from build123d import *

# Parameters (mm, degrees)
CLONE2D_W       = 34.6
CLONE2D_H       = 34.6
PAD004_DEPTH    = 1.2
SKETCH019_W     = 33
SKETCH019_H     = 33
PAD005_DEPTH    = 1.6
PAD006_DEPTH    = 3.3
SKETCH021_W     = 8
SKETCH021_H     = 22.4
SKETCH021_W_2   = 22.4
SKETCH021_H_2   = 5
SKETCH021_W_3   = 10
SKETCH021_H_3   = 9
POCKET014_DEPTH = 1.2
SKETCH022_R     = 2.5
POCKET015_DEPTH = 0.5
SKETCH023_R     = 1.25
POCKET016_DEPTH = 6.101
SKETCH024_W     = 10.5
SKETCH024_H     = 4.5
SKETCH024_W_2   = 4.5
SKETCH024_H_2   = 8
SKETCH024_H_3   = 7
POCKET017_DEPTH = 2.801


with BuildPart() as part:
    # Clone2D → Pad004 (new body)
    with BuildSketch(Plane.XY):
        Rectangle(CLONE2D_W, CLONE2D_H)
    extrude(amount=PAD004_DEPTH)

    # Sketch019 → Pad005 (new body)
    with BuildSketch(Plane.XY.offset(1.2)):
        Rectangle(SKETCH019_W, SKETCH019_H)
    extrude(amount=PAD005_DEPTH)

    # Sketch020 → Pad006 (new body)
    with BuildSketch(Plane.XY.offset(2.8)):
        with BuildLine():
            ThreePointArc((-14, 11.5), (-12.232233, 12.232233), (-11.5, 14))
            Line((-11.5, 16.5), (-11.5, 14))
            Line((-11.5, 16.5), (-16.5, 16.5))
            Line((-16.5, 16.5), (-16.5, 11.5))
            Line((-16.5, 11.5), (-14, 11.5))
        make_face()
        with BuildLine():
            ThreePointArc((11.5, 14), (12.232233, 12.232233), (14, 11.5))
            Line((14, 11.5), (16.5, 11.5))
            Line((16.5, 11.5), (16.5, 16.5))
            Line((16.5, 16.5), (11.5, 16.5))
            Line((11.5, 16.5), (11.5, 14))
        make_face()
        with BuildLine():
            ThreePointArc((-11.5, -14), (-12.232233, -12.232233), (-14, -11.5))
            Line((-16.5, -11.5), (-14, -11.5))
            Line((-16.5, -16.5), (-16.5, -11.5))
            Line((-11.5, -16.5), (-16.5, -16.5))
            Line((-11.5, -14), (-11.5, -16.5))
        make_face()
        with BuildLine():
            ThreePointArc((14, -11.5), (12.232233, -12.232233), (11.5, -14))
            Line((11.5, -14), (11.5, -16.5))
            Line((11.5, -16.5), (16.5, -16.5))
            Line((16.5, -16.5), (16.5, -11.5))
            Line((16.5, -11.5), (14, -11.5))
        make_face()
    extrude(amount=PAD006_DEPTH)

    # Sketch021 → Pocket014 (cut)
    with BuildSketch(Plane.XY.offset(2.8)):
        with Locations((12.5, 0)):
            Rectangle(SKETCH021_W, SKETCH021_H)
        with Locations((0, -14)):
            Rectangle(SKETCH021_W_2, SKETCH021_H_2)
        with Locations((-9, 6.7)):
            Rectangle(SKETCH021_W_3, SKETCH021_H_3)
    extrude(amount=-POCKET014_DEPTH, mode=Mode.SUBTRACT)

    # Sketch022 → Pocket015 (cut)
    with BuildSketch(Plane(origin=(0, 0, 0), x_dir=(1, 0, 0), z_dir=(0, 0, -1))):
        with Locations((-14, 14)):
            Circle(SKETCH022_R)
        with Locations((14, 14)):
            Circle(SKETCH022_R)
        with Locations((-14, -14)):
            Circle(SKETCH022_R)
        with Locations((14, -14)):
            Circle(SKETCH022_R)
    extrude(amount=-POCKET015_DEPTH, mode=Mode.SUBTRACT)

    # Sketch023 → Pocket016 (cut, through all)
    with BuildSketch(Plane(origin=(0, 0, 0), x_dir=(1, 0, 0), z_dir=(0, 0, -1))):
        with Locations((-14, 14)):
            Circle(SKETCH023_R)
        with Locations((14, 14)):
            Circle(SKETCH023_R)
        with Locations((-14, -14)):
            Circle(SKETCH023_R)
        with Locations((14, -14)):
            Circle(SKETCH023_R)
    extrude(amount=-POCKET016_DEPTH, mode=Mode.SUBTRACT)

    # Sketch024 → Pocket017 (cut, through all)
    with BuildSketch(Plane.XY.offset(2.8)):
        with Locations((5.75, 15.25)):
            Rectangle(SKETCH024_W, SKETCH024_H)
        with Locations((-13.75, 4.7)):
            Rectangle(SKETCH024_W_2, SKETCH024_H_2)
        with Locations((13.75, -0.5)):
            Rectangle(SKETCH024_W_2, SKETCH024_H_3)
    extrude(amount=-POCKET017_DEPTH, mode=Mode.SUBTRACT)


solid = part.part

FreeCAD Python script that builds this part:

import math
import FreeCAD as App
import Part
import Sketcher

V = App.Vector
Q = App.Units.Quantity

doc = App.newDocument("Part")
params = doc.addObject("Spreadsheet::Sheet", "Params")
for row, (alias, value) in enumerate([
    ("sketch1_width", "34.6 mm"),
    ("pad1_length", "1.2 mm"),
    ("sketch2_width", "33 mm"),
    ("pad2_length", "1.6 mm"),
    ("sketch3_radius", "2.5 mm"),
    ("sketch3_width", "5 mm"),
    ("pad3_length", "3.3 mm"),
    ("sketch4_width", "8 mm"),
    ("sketch4_width2", "10 mm"),
    ("sketch4_height", "5 mm"),
    ("sketch4_height2", "9 mm"),
    ("sketch4_width3", "22.4 mm"),
    ("pocket1_length", "1.2 mm"),
    ("sketch5_diameter", "5 mm"),
    ("pocket2_length", "0.5 mm"),
    ("sketch6_diameter", "2.5 mm"),
    ("sketch7_height", "8 mm"),
    ("sketch7_height2", "7 mm"),
    ("sketch7_width", "10.5 mm"),
    ("sketch7_width2", "4.5 mm"),
], start=1):
    params.set(f"A{row}", alias)
    params.set(f"B{row}", "=" + value)
    params.setAlias(f"B{row}", alias)

body = doc.addObject("PartDesign::Body", "Body")

# Sketch on XY plane
sketch1 = body.newObject("Sketcher::SketchObject", "Sketch")
sketch1.AttachmentSupport = (doc.getObject("XY_Plane"), [""])
sketch1.MapMode = "FlatFace"
sketch1.addGeometry([
    Part.LineSegment(V(-17, 17, 0), V(-17, -17, 0)),
    Part.LineSegment(V(-17, -17, 0), V(17, -17, 0)),
    Part.LineSegment(V(17, -17, 0), V(17, 17, 0)),
    Part.LineSegment(V(17, 17, 0), V(-17, 17, 0)),
], False)
sketch1.addConstraint([
    Sketcher.Constraint("Coincident", 0, 2, 1, 1),
    Sketcher.Constraint("Coincident", 1, 2, 2, 1),
    Sketcher.Constraint("Coincident", 2, 2, 3, 1),
    Sketcher.Constraint("Coincident", 3, 2, 0, 1),
    Sketcher.Constraint("Vertical", 0),
    Sketcher.Constraint("Horizontal", 1),
    Sketcher.Constraint("Vertical", 2),
    Sketcher.Constraint("Horizontal", 3),
    Sketcher.Constraint("Symmetric", 0, 2, 2, 2, -1, 1),
    Sketcher.Constraint("Equal", 3, 0),
    Sketcher.Constraint("DistanceX", 1, 1, 1, 2, Q("34.6 mm")),
])
sketch1.setExpression("Constraints[10]", "Params.sketch1_width")
pad1 = body.newObject("PartDesign::Pad", "Pad")
pad1.Profile = sketch1
pad1.setExpression("Length", "Params.pad1_length")

# Sketch on XY plane
sketch2 = body.newObject("Sketcher::SketchObject", "Sketch001")
sketch2.AttachmentSupport = (doc.getObject("XY_Plane"), [""])
sketch2.MapMode = "FlatFace"
sketch2.AttachmentOffset = App.Placement(V(0, 0, 1.2), App.Rotation())
sketch2.addGeometry([
    Part.LineSegment(V(-16, 16, 0), V(-16, -16, 0)),
    Part.LineSegment(V(-16, -16, 0), V(16, -16, 0)),
    Part.LineSegment(V(16, -16, 0), V(16, 16, 0)),
    Part.LineSegment(V(16, 16, 0), V(-16, 16, 0)),
], False)
sketch2.addConstraint([
    Sketcher.Constraint("Coincident", 0, 2, 1, 1),
    Sketcher.Constraint("Coincident", 1, 2, 2, 1),
    Sketcher.Constraint("Coincident", 2, 2, 3, 1),
    Sketcher.Constraint("Coincident", 3, 2, 0, 1),
    Sketcher.Constraint("Vertical", 0),
    Sketcher.Constraint("Horizontal", 1),
    Sketcher.Constraint("Vertical", 2),
    Sketcher.Constraint("Horizontal", 3),
    Sketcher.Constraint("Symmetric", 0, 2, 2, 2, -1, 1),
    Sketcher.Constraint("Equal", 3, 0),
    Sketcher.Constraint("DistanceX", 1, 1, 1, 2, Q("33 mm")),
])
sketch2.setExpression("Constraints[10]", "Params.sketch2_width")
pad2 = body.newObject("PartDesign::Pad", "Pad001")
pad2.Profile = sketch2
pad2.setExpression("Length", "Params.pad2_length")

# Sketch on XY plane
sketch3 = body.newObject("Sketcher::SketchObject", "Sketch002")
sketch3.AttachmentSupport = (doc.getObject("XY_Plane"), [""])
sketch3.MapMode = "FlatFace"
sketch3.AttachmentOffset = App.Placement(V(0, 0, 2.8), App.Rotation())
sketch3.addGeometry([
    Part.ArcOfCircle(Part.Circle(V(-14, 14, 0), V(0, 0, 1), 2.5), math.radians(-90), math.radians(0)),  # 0
    Part.LineSegment(V(-11.5, 14, 0), V(-11.5, 16.5, 0)),  # 1
    Part.LineSegment(V(-11.5, 16.5, 0), V(-16.5, 16.5, 0)),  # 2
    Part.LineSegment(V(-16.5, 16.5, 0), V(-16.5, 11.5, 0)),  # 3
    Part.LineSegment(V(-16.5, 11.5, 0), V(-14, 11.5, 0)),  # 4
    Part.ArcOfCircle(Part.Circle(V(14, 14, 0), V(0, 0, 1), 2.5), math.radians(180), math.radians(270)),  # 5
    Part.LineSegment(V(14, 11.5, 0), V(16.5, 11.5, 0)),  # 6
    Part.LineSegment(V(16.5, 11.5, 0), V(16.5, 16.5, 0)),  # 7
    Part.LineSegment(V(16.5, 16.5, 0), V(11.5, 16.5, 0)),  # 8
    Part.LineSegment(V(11.5, 16.5, 0), V(11.5, 14, 0)),  # 9
    Part.ArcOfCircle(Part.Circle(V(-14, -14, 0), V(0, 0, 1), 2.5), math.radians(0), math.radians(90)),  # 10
    Part.LineSegment(V(-14, -11.5, 0), V(-16.5, -11.5, 0)),  # 11
    Part.LineSegment(V(-16.5, -11.5, 0), V(-16.5, -16.5, 0)),  # 12
    Part.LineSegment(V(-16.5, -16.5, 0), V(-11.5, -16.5, 0)),  # 13
    Part.LineSegment(V(-11.5, -16.5, 0), V(-11.5, -14, 0)),  # 14
    Part.ArcOfCircle(Part.Circle(V(14, -14, 0), V(0, 0, 1), 2.5), math.radians(90), math.radians(180)),  # 15
    Part.LineSegment(V(11.5, -14, 0), V(11.5, -16.5, 0)),  # 16
    Part.LineSegment(V(11.5, -16.5, 0), V(16.5, -16.5, 0)),  # 17
    Part.LineSegment(V(16.5, -16.5, 0), V(16.5, -11.5, 0)),  # 18
    Part.LineSegment(V(16.5, -11.5, 0), V(14, -11.5, 0)),  # 19
], False)
sketch3.addConstraint([
    Sketcher.Constraint("Tangent", 0, 2, 1, 1),
    Sketcher.Constraint("Coincident", 1, 2, 2, 1),
    Sketcher.Constraint("Coincident", 2, 2, 3, 1),
    Sketcher.Constraint("Coincident", 3, 2, 4, 1),
    Sketcher.Constraint("Tangent", 4, 2, 0, 1),
    Sketcher.Constraint("Tangent", 5, 2, 6, 1),
    Sketcher.Constraint("Coincident", 6, 2, 7, 1),
    Sketcher.Constraint("Coincident", 7, 2, 8, 1),
    Sketcher.Constraint("Coincident", 8, 2, 9, 1),
    Sketcher.Constraint("Tangent", 9, 2, 5, 1),
    Sketcher.Constraint("Tangent", 10, 2, 11, 1),
    Sketcher.Constraint("Coincident", 11, 2, 12, 1),
    Sketcher.Constraint("Coincident", 12, 2, 13, 1),
    Sketcher.Constraint("Coincident", 13, 2, 14, 1),
    Sketcher.Constraint("Tangent", 14, 2, 10, 1),
    Sketcher.Constraint("Tangent", 15, 2, 16, 1),
    Sketcher.Constraint("Coincident", 16, 2, 17, 1),
    Sketcher.Constraint("Coincident", 17, 2, 18, 1),
    Sketcher.Constraint("Coincident", 18, 2, 19, 1),
    Sketcher.Constraint("Tangent", 19, 2, 15, 1),
    Sketcher.Constraint("Vertical", 1),
    Sketcher.Constraint("Horizontal", 2),
    Sketcher.Constraint("Vertical", 3),
    Sketcher.Constraint("Horizontal", 4),
    Sketcher.Constraint("Horizontal", 6),
    Sketcher.Constraint("Vertical", 7),
    Sketcher.Constraint("Horizontal", 8),
    Sketcher.Constraint("Vertical", 9),
    Sketcher.Constraint("Horizontal", 11),
    Sketcher.Constraint("Vertical", 12),
    Sketcher.Constraint("Horizontal", 13),
    Sketcher.Constraint("Vertical", 14),
    Sketcher.Constraint("Vertical", 16),
    Sketcher.Constraint("Horizontal", 17),
    Sketcher.Constraint("Vertical", 18),
    Sketcher.Constraint("Horizontal", 19),
    Sketcher.Constraint("Equal", 0, 5),
    Sketcher.Constraint("Equal", 5, 10),
    Sketcher.Constraint("Equal", 10, 15),
    Sketcher.Constraint("Symmetric", 5, 3, 10, 3, -1, 1),
    Sketcher.Constraint("Symmetric", 0, 3, 15, 3, -1, 1),
    Sketcher.Constraint("Symmetric", 7, 2, 12, 2, -1, 1),
    Sketcher.Constraint("Symmetric", 2, 2, 17, 2, -1, 1),
    Sketcher.Constraint("Symmetric", 0, 3, 5, 3, -2),
    Sketcher.Constraint("Symmetric", 2, 2, 7, 2, -2),
    Sketcher.Constraint("Equal", 19, 1),
    Sketcher.Constraint("Radius", 0, Q("2.5 mm")),
    Sketcher.Constraint("DistanceX", 2, 2, 2, 1, Q("5 mm")),
    Sketcher.Constraint("DistanceX", 0, 3, -1, 1, Q("14 mm")),
    Sketcher.Constraint("DistanceY", -1, 1, 0, 3, Q("14 mm")),
])
sketch3.setExpression("Constraints[46]", "Params.sketch3_radius")
sketch3.setExpression("Constraints[47]", "Params.sketch3_width")
pad3 = body.newObject("PartDesign::Pad", "Pad002")
pad3.Profile = sketch3
pad3.setExpression("Length", "Params.pad3_length")

# Sketch on XY plane
sketch4 = body.newObject("Sketcher::SketchObject", "Sketch003")
sketch4.AttachmentSupport = (doc.getObject("XY_Plane"), [""])
sketch4.MapMode = "FlatFace"
sketch4.AttachmentOffset = App.Placement(V(0, 0, 2.8), App.Rotation())
sketch4.addGeometry([
    Part.LineSegment(V(8, 11, 0), V(8, -11, 0)),  # 0
    Part.LineSegment(V(8, -11, 0), V(16, -11, 0)),  # 1
    Part.LineSegment(V(16, -11, 0), V(16, 11, 0)),  # 2
    Part.LineSegment(V(16, 11, 0), V(8, 11, 0)),  # 3
    Part.LineSegment(V(-11, -12, 0), V(-11, -16, 0)),  # 4
    Part.LineSegment(V(-11, -16, 0), V(11, -16, 0)),  # 5
    Part.LineSegment(V(11, -16, 0), V(11, -12, 0)),  # 6
    Part.LineSegment(V(11, -12, 0), V(-11, -12, 0)),  # 7
    Part.LineSegment(V(-14, 11, 0), V(-14, 2, 0)),  # 8
    Part.LineSegment(V(-14, 2, 0), V(-4, 2, 0)),  # 9
    Part.LineSegment(V(-4, 2, 0), V(-4, 11, 0)),  # 10
    Part.LineSegment(V(-4, 11, 0), V(-14, 11, 0)),  # 11
], False)
sketch4.addConstraint([
    Sketcher.Constraint("Coincident", 0, 2, 1, 1),
    Sketcher.Constraint("Coincident", 1, 2, 2, 1),
    Sketcher.Constraint("Coincident", 2, 2, 3, 1),
    Sketcher.Constraint("Coincident", 3, 2, 0, 1),
    Sketcher.Constraint("Coincident", 4, 2, 5, 1),
    Sketcher.Constraint("Coincident", 5, 2, 6, 1),
    Sketcher.Constraint("Coincident", 6, 2, 7, 1),
    Sketcher.Constraint("Coincident", 7, 2, 4, 1),
    Sketcher.Constraint("Coincident", 8, 2, 9, 1),
    Sketcher.Constraint("Coincident", 9, 2, 10, 1),
    Sketcher.Constraint("Coincident", 10, 2, 11, 1),
    Sketcher.Constraint("Coincident", 11, 2, 8, 1),
    Sketcher.Constraint("Vertical", 0),
    Sketcher.Constraint("Horizontal", 1),
    Sketcher.Constraint("Vertical", 2),
    Sketcher.Constraint("Horizontal", 3),
    Sketcher.Constraint("Vertical", 4),
    Sketcher.Constraint("Horizontal", 5),
    Sketcher.Constraint("Vertical", 6),
    Sketcher.Constraint("Horizontal", 7),
    Sketcher.Constraint("Vertical", 8),
    Sketcher.Constraint("Horizontal", 9),
    Sketcher.Constraint("Vertical", 10),
    Sketcher.Constraint("Horizontal", 11),
    Sketcher.Constraint("Horizontal", 3, 2, 10, 2),
    Sketcher.Constraint("Equal", 7, 0),
    Sketcher.Constraint("DistanceX", 1, 1, 1, 2, Q("8 mm")),
    Sketcher.Constraint("DistanceX", 9, 1, 9, 2, Q("10 mm")),
    Sketcher.Constraint("DistanceY", 4, 2, 4, 1, Q("5 mm")),
    Sketcher.Constraint("DistanceY", 8, 2, 8, 1, Q("9 mm")),
    Sketcher.Constraint("DistanceX", 5, 1, 5, 2, Q("22.4 mm")),
    Sketcher.Constraint("DistanceX", 8, 2, -1, 1, Q("14 mm")),
    Sketcher.Constraint("DistanceX", -1, 1, 0, 2, Q("8.5 mm")),
    Sketcher.Constraint("DistanceY", 0, 2, -1, 1, Q("11.2 mm")),
    Sketcher.Constraint("DistanceX", 4, 2, -1, 1, Q("11.2 mm")),
    Sketcher.Constraint("DistanceY", 4, 2, -1, 1, Q("16.5 mm")),
])
sketch4.setExpression("Constraints[26]", "Params.sketch4_width")
sketch4.setExpression("Constraints[27]", "Params.sketch4_width2")
sketch4.setExpression("Constraints[28]", "Params.sketch4_height")
sketch4.setExpression("Constraints[29]", "Params.sketch4_height2")
sketch4.setExpression("Constraints[30]", "Params.sketch4_width3")
pocket1 = body.newObject("PartDesign::Pocket", "Pocket")
pocket1.Profile = sketch4
pocket1.setExpression("Length", "Params.pocket1_length")

# Sketch on XY plane
sketch5 = body.newObject("Sketcher::SketchObject", "Sketch004")
sketch5.AttachmentSupport = (doc.getObject("XY_Plane"), [""])
sketch5.MapMode = "FlatFace"
sketch5.addGeometry([
    Part.Circle(V(-14, -14, 0), V(0, 0, 1), 2.5),
    Part.Circle(V(14, -14, 0), V(0, 0, 1), 2.5),
    Part.Circle(V(-14, 14, 0), V(0, 0, 1), 2.5),
    Part.Circle(V(14, 14, 0), V(0, 0, 1), 2.5),
], False)
sketch5.addConstraint([
    Sketcher.Constraint("Equal", 0, 1),
    Sketcher.Constraint("Equal", 1, 2),
    Sketcher.Constraint("Equal", 2, 3),
    Sketcher.Constraint("Symmetric", 1, 3, 2, 3, -1, 1),
    Sketcher.Constraint("Symmetric", 0, 3, 3, 3, -1, 1),
    Sketcher.Constraint("Symmetric", 0, 3, 1, 3, -2),
    Sketcher.Constraint("Diameter", 0, Q("5 mm")),
    Sketcher.Constraint("DistanceX", 0, 3, -1, 1, Q("14 mm")),
    Sketcher.Constraint("DistanceY", 0, 3, -1, 1, Q("14 mm")),
])
sketch5.setExpression("Constraints[6]", "Params.sketch5_diameter")
pocket2 = body.newObject("PartDesign::Pocket", "Pocket001")
pocket2.Profile = sketch5
pocket2.setExpression("Length", "Params.pocket2_length")
pocket2.Reversed = True

# Sketch on XY plane
sketch6 = body.newObject("Sketcher::SketchObject", "Sketch005")
sketch6.AttachmentSupport = (doc.getObject("XY_Plane"), [""])
sketch6.MapMode = "FlatFace"
sketch6.addGeometry([
    Part.Circle(V(-14, -14, 0), V(0, 0, 1), 1.2),
    Part.Circle(V(14, -14, 0), V(0, 0, 1), 1.2),
    Part.Circle(V(-14, 14, 0), V(0, 0, 1), 1.2),
    Part.Circle(V(14, 14, 0), V(0, 0, 1), 1.2),
], False)
sketch6.addConstraint([
    Sketcher.Constraint("Equal", 0, 1),
    Sketcher.Constraint("Equal", 1, 2),
    Sketcher.Constraint("Equal", 2, 3),
    Sketcher.Constraint("Symmetric", 1, 3, 2, 3, -1, 1),
    Sketcher.Constraint("Symmetric", 0, 3, 3, 3, -1, 1),
    Sketcher.Constraint("Symmetric", 0, 3, 1, 3, -2),
    Sketcher.Constraint("Diameter", 0, Q("2.5 mm")),
    Sketcher.Constraint("DistanceX", 0, 3, -1, 1, Q("14 mm")),
    Sketcher.Constraint("DistanceY", 0, 3, -1, 1, Q("14 mm")),
])
sketch6.setExpression("Constraints[6]", "Params.sketch6_diameter")
pocket3 = body.newObject("PartDesign::Pocket", "Pocket002")
pocket3.Profile = sketch6
pocket3.Type = "ThroughAll"
pocket3.Reversed = True

# Sketch on XY plane
sketch7 = body.newObject("Sketcher::SketchObject", "Sketch006")
sketch7.AttachmentSupport = (doc.getObject("XY_Plane"), [""])
sketch7.MapMode = "FlatFace"
sketch7.AttachmentOffset = App.Placement(V(0, 0, 2.8), App.Rotation())
sketch7.addGeometry([
    Part.LineSegment(V(0.5, 17.5, 0), V(0.5, 13, 0)),  # 0
    Part.LineSegment(V(0.5, 13, 0), V(11, 13, 0)),  # 1
    Part.LineSegment(V(11, 13, 0), V(11, 17.5, 0)),  # 2
    Part.LineSegment(V(11, 17.5, 0), V(0.5, 17.5, 0)),  # 3
    Part.LineSegment(V(-16, 8.7, 0), V(-16, 0.7, 0)),  # 4
    Part.LineSegment(V(-16, 0.7, 0), V(-11.5, 0.7, 0)),  # 5
    Part.LineSegment(V(-11.5, 0.7, 0), V(-11.5, 8.7, 0)),  # 6
    Part.LineSegment(V(-11.5, 8.7, 0), V(-16, 8.7, 0)),  # 7
    Part.LineSegment(V(11.5, 3, 0), V(11.5, -4, 0)),  # 8
    Part.LineSegment(V(11.5, -4, 0), V(16, -4, 0)),  # 9
    Part.LineSegment(V(16, -4, 0), V(16, 3, 0)),  # 10
    Part.LineSegment(V(16, 3, 0), V(11.5, 3, 0)),  # 11
], False)
sketch7.addConstraint([
    Sketcher.Constraint("Coincident", 0, 2, 1, 1),
    Sketcher.Constraint("Coincident", 1, 2, 2, 1),
    Sketcher.Constraint("Coincident", 2, 2, 3, 1),
    Sketcher.Constraint("Coincident", 3, 2, 0, 1),
    Sketcher.Constraint("Coincident", 4, 2, 5, 1),
    Sketcher.Constraint("Coincident", 5, 2, 6, 1),
    Sketcher.Constraint("Coincident", 6, 2, 7, 1),
    Sketcher.Constraint("Coincident", 7, 2, 4, 1),
    Sketcher.Constraint("Coincident", 8, 2, 9, 1),
    Sketcher.Constraint("Coincident", 9, 2, 10, 1),
    Sketcher.Constraint("Coincident", 10, 2, 11, 1),
    Sketcher.Constraint("Coincident", 11, 2, 8, 1),
    Sketcher.Constraint("Vertical", 0),
    Sketcher.Constraint("Horizontal", 1),
    Sketcher.Constraint("Vertical", 2),
    Sketcher.Constraint("Horizontal", 3),
    Sketcher.Constraint("Vertical", 4),
    Sketcher.Constraint("Horizontal", 5),
    Sketcher.Constraint("Vertical", 6),
    Sketcher.Constraint("Horizontal", 7),
    Sketcher.Constraint("Vertical", 8),
    Sketcher.Constraint("Horizontal", 9),
    Sketcher.Constraint("Vertical", 10),
    Sketcher.Constraint("Horizontal", 11),
    Sketcher.Constraint("Equal", 7, 9),
    Sketcher.Constraint("Equal", 11, 0),
    Sketcher.Constraint("DistanceY", 4, 2, 4, 1, Q("8 mm")),
    Sketcher.Constraint("DistanceY", 8, 2, 8, 1, Q("7 mm")),
    Sketcher.Constraint("DistanceX", 1, 1, 1, 2, Q("10.5 mm")),
    Sketcher.Constraint("DistanceX", 5, 1, 5, 2, Q("4.5 mm")),
    Sketcher.Constraint("DistanceY", -1, 1, 0, 2, Q("13 mm")),
    Sketcher.Constraint("DistanceX", -1, 1, 1, 2, Q("11 mm")),
    Sketcher.Constraint("DistanceX", 4, 2, -1, 1, Q("16 mm")),
    Sketcher.Constraint("DistanceY", 8, 2, -1, 1, Q("4 mm")),
    Sketcher.Constraint("DistanceX", -1, 1, 9, 2, Q("16 mm")),
    Sketcher.Constraint("DistanceY", -1, 1, 4, 2, Q("0.7 mm")),
])
sketch7.setExpression("Constraints[26]", "Params.sketch7_height")
sketch7.setExpression("Constraints[27]", "Params.sketch7_height2")
sketch7.setExpression("Constraints[28]", "Params.sketch7_width")
sketch7.setExpression("Constraints[29]", "Params.sketch7_width2")
pocket4 = body.newObject("PartDesign::Pocket", "Pocket003")
pocket4.Profile = sketch7
pocket4.Type = "ThroughAll"

doc.recompute()
